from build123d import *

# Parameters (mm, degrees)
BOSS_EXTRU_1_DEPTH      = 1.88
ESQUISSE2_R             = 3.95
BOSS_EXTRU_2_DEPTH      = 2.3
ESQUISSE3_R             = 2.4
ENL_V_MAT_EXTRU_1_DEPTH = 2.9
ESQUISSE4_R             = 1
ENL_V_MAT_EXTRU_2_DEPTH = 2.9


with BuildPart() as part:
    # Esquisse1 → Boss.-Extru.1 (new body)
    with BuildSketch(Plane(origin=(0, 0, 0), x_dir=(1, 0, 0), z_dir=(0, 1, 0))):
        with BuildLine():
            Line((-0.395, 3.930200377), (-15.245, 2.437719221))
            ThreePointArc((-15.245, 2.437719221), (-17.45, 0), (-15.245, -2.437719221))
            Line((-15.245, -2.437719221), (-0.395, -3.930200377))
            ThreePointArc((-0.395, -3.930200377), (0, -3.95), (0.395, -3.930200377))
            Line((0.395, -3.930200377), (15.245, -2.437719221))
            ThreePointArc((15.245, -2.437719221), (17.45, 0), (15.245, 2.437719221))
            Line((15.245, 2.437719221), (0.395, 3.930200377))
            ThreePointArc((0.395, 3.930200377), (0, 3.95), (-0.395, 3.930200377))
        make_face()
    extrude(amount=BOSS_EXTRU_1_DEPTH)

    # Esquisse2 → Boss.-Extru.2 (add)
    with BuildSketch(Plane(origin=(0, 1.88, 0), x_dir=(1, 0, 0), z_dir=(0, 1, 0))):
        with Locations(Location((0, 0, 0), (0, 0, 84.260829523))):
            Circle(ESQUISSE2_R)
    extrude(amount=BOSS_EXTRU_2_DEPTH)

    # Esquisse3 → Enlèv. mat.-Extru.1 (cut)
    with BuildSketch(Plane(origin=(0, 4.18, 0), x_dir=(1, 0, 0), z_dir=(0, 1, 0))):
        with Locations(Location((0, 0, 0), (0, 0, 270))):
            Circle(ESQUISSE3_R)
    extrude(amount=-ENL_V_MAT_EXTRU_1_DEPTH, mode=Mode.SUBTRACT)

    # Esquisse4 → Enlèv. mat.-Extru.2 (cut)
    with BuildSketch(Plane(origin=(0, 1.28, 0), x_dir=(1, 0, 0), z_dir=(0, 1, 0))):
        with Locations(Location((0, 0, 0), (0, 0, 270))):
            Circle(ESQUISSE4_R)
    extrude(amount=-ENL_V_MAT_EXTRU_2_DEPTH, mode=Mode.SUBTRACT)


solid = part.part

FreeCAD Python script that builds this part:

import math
import FreeCAD as App
import Part
import Sketcher

V = App.Vector
Q = App.Units.Quantity

doc = App.newDocument("Part")
body = doc.addObject("PartDesign::Body", "Body")

# Sketch on XZ plane
sketch1 = body.newObject("Sketcher::SketchObject", "Sketch")
sketch1.AttachmentSupport = (doc.getObject("XZ_Plane"), [""])
sketch1.MapMode = "FlatFace"
sketch1.addGeometry(Part.LineSegment(V(-0.4, -3.9, 0), V(-15.2, -2.4, 0)), False)
sketch1.addGeometry(Part.ArcOfCircle(Part.Circle(V(-15, 0, 0), V(0, 0, 1), 2.5), math.radians(96), math.radians(264)), False)
sketch1.addGeometry(Part.LineSegment(V(-15.2, 2.4, 0), V(-0.4, 3.9, 0)), False)
sketch1.addGeometry(Part.ArcOfCircle(Part.Circle(V(0, 0, 0), V(0, 0, 1), 4), math.radians(84.26), math.radians(95.74)), False)
sketch1.addGeometry(Part.LineSegment(V(0.4, 3.9, 0), V(15.2, 2.4, 0)), False)
sketch1.addGeometry(Part.ArcOfCircle(Part.Circle(V(15, 0, 0), V(0, 0, 1), 2.5), math.radians(-84), math.radians(84)), False)
sketch1.addGeometry(Part.LineSegment(V(15.2, -2.4, 0), V(0.4, -3.9, 0)), False)
sketch1.addGeometry(Part.ArcOfCircle(Part.Circle(V(0, 0, 0), V(0, 0, 1), 4), math.radians(-95.74), math.radians(-84.26)), False)
sketch1.addConstraint(Sketcher.Constraint("Tangent", 0, 2, 1, 2))
sketch1.addConstraint(Sketcher.Constraint("Tangent", 1, 1, 2, 1))
sketch1.addConstraint(Sketcher.Constraint("Tangent", 2, 2, 3, 2))
sketch1.addConstraint(Sketcher.Constraint("Tangent", 3, 1, 4, 1))
sketch1.addConstraint(Sketcher.Constraint("Tangent", 4, 2, 5, 2))
sketch1.addConstraint(Sketcher.Constraint("Tangent", 5, 1, 6, 1))
sketch1.addConstraint(Sketcher.Constraint("Tangent", 6, 2, 7, 2))
sketch1.addConstraint(Sketcher.Constraint("Tangent", 7, 1, 0, 1))
sketch1.addConstraint(Sketcher.Constraint("Coincident", 3, 3, -1, 1))
sketch1.addConstraint(Sketcher.Constraint("Coincident", 7, 3, -1, 1))
sketch1.addConstraint(Sketcher.Constraint("Equal", 1, 5))
sketch1.addConstraint(Sketcher.Constraint("Equal", 3, 7))
sketch1.addConstraint(Sketcher.Constraint("Symmetric", 1, 3, 5, 3, -1, 1))
sketch1.addConstraint(Sketcher.Constraint("PointOnObject", 1, 3, -1))
sketch1.addConstraint(Sketcher.Constraint("Radius", 1, Q("2.45 mm")))
sketch1.addConstraint(Sketcher.Constraint("Radius", 3, Q("3.95 mm")))
sketch1.addConstraint(Sketcher.Constraint("DistanceX", 1, 3, -1, 1, Q("15 mm")))
pad1 = body.newObject("PartDesign::Pad", "Pad")
pad1.Profile = sketch1
pad1.Length = 1.88
pad1.Reversed = True

# Sketch on XZ plane
sketch2 = body.newObject("Sketcher::SketchObject", "Sketch001")
sketch2.AttachmentSupport = (doc.getObject("XZ_Plane"), [""])
sketch2.MapMode = "FlatFace"
sketch2.AttachmentOffset = App.Placement(V(0, 0, -1.88), App.Rotation())
sketch2.addGeometry(Part.Circle(V(0, 0, 0), V(0, 0, 1), 4), False)
sketch2.addConstraint(Sketcher.Constraint("Coincident", 0, 3, -1, 1))
sketch2.addConstraint(Sketcher.Constraint("Diameter", 0, Q("7.9 mm")))
pad2 = body.newObject("PartDesign::Pad", "Pad001")
pad2.Profile = sketch2
pad2.Length = 2.3
pad2.Reversed = True

# Sketch on XZ plane
sketch3 = body.newObject("Sketcher::SketchObject", "Sketch002")
sketch3.AttachmentSupport = (doc.getObject("XZ_Plane"), [""])
sketch3.MapMode = "FlatFace"
sketch3.AttachmentOffset = App.Placement(V(0, 0, -4.18), App.Rotation())
sketch3.addGeometry(Part.Circle(V(0, 0, 0), V(0, 0, 1), 2.4), False)
sketch3.addConstraint(Sketcher.Constraint("Coincident", 0, 3, -1, 1))
sketch3.addConstraint(Sketcher.Constraint("Diameter", 0, Q("4.8 mm")))
pocket1 = body.newObject("PartDesign::Pocket", "Pocket")
pocket1.Profile = sketch3
pocket1.Length = 2.9
pocket1.Reversed = True

# Sketch on XZ plane
sketch4 = body.newObject("Sketcher::SketchObject", "Sketch003")
sketch4.AttachmentSupport = (doc.getObject("XZ_Plane"), [""])
sketch4.MapMode = "FlatFace"
sketch4.AttachmentOffset = App.Placement(V(0, 0, -1.28), App.Rotation())
sketch4.addGeometry(Part.Circle(V(0, 0, 0), V(0, 0, 1), 1), False)
sketch4.addConstraint(Sketcher.Constraint("Coincident", 0, 3, -1, 1))
sketch4.addConstraint(Sketcher.Constraint("Diameter", 0, Q("2 mm")))
pocket2 = body.newObject("PartDesign::Pocket", "Pocket001")
pocket2.Profile = sketch4
pocket2.Length = 2.9
pocket2.Reversed = True

doc.recompute()
